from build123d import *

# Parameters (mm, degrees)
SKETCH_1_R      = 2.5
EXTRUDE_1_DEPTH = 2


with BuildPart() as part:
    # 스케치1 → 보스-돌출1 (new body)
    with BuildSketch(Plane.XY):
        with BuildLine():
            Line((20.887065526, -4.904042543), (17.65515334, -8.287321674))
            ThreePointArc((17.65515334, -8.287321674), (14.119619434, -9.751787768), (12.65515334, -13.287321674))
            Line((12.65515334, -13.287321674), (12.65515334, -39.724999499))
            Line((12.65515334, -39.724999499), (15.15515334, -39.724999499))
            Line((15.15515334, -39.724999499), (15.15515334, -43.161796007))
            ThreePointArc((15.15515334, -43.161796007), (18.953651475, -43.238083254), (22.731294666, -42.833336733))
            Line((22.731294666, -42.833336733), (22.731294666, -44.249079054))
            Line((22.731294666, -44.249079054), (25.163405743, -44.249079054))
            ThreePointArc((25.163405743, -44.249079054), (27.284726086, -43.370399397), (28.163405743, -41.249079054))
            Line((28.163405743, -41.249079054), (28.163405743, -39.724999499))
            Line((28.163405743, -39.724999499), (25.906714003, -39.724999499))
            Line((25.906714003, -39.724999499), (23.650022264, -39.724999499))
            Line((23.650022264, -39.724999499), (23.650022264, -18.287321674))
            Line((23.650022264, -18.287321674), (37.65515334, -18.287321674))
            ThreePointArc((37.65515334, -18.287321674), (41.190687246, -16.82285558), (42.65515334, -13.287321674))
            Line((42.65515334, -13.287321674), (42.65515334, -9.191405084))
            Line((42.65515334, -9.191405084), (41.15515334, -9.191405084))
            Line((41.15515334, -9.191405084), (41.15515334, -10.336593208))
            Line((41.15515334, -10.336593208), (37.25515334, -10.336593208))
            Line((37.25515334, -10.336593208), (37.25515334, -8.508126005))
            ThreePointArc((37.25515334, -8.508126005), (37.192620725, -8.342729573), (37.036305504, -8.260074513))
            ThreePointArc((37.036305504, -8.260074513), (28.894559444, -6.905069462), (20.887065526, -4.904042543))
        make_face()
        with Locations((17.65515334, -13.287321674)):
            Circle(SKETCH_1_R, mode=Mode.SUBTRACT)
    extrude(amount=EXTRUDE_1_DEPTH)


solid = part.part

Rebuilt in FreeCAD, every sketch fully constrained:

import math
import FreeCAD as App
import Part
import Sketcher
from FreeCAD import Vector

doc = App.newDocument("Part")
params = doc.addObject("Spreadsheet::Sheet", "Params")
for row, (alias, value) in enumerate([
    ("sketch1_diameter", "5 mm"),
    ("sketch1_radius", "5 mm"),
    ("sketch1_radius2", "3 mm"),
    ("sketch1_radius3", "0.25 mm"),
    ("sketch1_width", "2.5 mm"),
    ("pad1_length", "2 mm"),
], start=1):
    params.set(f"A{row}", alias)
    params.set(f"B{row}", "=" + value)
    params.setAlias(f"B{row}", alias)

body = doc.addObject("PartDesign::Body", "Body")

# Sketch on XY plane
sketch1 = body.newObject("Sketcher::SketchObject", "Sketch")
sketch1.AttachmentSupport = (doc.getObject("XY_Plane"), [""])
sketch1.MapMode = "FlatFace"
sketch1.addGeometry(Part.LineSegment(Vector(20.887066, -4.904043, 0), Vector(17.655153, -8.287322, 0)), False)
sketch1.addGeometry(Part.ArcOfCircle(Part.Circle(Vector(17.655153, -13.287322, 0), Vector(0, 0, 1), 5), math.radians(90), math.radians(180)), False)
sketch1.addGeometry(Part.LineSegment(Vector(12.655153, -13.287322, 0), Vector(12.655153, -39.724999, 0)), False)
sketch1.addGeometry(Part.LineSegment(Vector(12.655153, -39.724999, 0), Vector(15.155153, -39.724999, 0)), False)
sketch1.addGeometry(Part.LineSegment(Vector(15.155153, -39.724999, 0), Vector(15.155153, -43.161796, 0)), False)
sketch1.addGeometry(Part.ArcOfCircle(Part.Circle(Vector(17.655153, -13.287322, 0), Vector(0, 0, 1), 29.978896), math.radians(-94.783565), math.radians(-80.251493)), False)
sketch1.addGeometry(Part.LineSegment(Vector(22.731295, -42.833337, 0), Vector(22.731295, -44.249079, 0)), False)
sketch1.addGeometry(Part.LineSegment(Vector(22.731295, -44.249079, 0), Vector(25.163406, -44.249079, 0)), False)
sketch1.addGeometry(Part.ArcOfCircle(Part.Circle(Vector(25.163406, -41.249079, 0), Vector(0, 0, 1), 3), math.radians(-90), math.radians(0)), False)
sketch1.addGeometry(Part.LineSegment(Vector(28.163406, -41.249079, 0), Vector(28.163406, -39.724999, 0)), False)
sketch1.addGeometry(Part.LineSegment(Vector(28.163406, -39.724999, 0), Vector(23.650022, -39.724999, 0)), False)
sketch1.addGeometry(Part.LineSegment(Vector(23.650022, -39.724999, 0), Vector(23.650022, -18.287322, 0)), False)
sketch1.addGeometry(Part.LineSegment(Vector(23.650022, -18.287322, 0), Vector(37.655153, -18.287322, 0)), False)
sketch1.addGeometry(Part.ArcOfCircle(Part.Circle(Vector(37.655153, -13.287322, 0), Vector(0, 0, 1), 5), math.radians(-90), math.radians(0)), False)
sketch1.addGeometry(Part.LineSegment(Vector(42.655153, -13.287322, 0), Vector(42.655153, -9.191405, 0)), False)
sketch1.addGeometry(Part.LineSegment(Vector(42.655153, -9.191405, 0), Vector(41.155153, -9.191405, 0)), False)
sketch1.addGeometry(Part.LineSegment(Vector(41.155153, -9.191405, 0), Vector(41.155153, -10.336593, 0)), False)
sketch1.addGeometry(Part.LineSegment(Vector(41.155153, -10.336593, 0), Vector(37.255153, -10.336593, 0)), False)
sketch1.addGeometry(Part.LineSegment(Vector(37.255153, -10.336593, 0), Vector(37.255153, -8.508126, 0)), False)
sketch1.addGeometry(Part.ArcOfCircle(Part.Circle(Vector(37.005153, -8.508126, 0), Vector(0, 0, 1), 0.25), math.radians(0), math.radians(82.841843)), False)
sketch1.addGeometry(Part.ArcOfCircle(Part.Circle(Vector(49.901625, 94.181019, 0), Vector(0, 0, 1), 103.245795), math.radians(-106.321337), math.radians(-97.158157)), False)
sketch1.addGeometry(Part.Circle(Vector(17.655153, -13.287322, 0), Vector(0, 0, 1), 2.5), False)
sketch1.addConstraint(Sketcher.Constraint("Coincident", 0, 2, 1, 1))
sketch1.addConstraint(Sketcher.Constraint("Tangent", 1, 2, 2, 1))
sketch1.addConstraint(Sketcher.Constraint("Coincident", 2, 2, 3, 1))
sketch1.addConstraint(Sketcher.Constraint("Coincident", 3, 2, 4, 1))
sketch1.addConstraint(Sketcher.Constraint("Coincident", 4, 2, 5, 1))
sketch1.addConstraint(Sketcher.Constraint("Coincident", 5, 2, 6, 1))
sketch1.addConstraint(Sketcher.Constraint("Coincident", 6, 2, 7, 1))
sketch1.addConstraint(Sketcher.Constraint("Tangent", 7, 2, 8, 1))
sketch1.addConstraint(Sketcher.Constraint("Tangent", 8, 2, 9, 1))
sketch1.addConstraint(Sketcher.Constraint("Coincident", 9, 2, 10, 1))
sketch1.addConstraint(Sketcher.Constraint("Coincident", 10, 2, 11, 1))
sketch1.addConstraint(Sketcher.Constraint("Coincident", 11, 2, 12, 1))
sketch1.addConstraint(Sketcher.Constraint("Tangent", 12, 2, 13, 1))
sketch1.addConstraint(Sketcher.Constraint("Tangent", 13, 2, 14, 1))
sketch1.addConstraint(Sketcher.Constraint("Coincident", 14, 2, 15, 1))
sketch1.addConstraint(Sketcher.Constraint("Coincident", 15, 2, 16, 1))
sketch1.addConstraint(Sketcher.Constraint("Coincident", 16, 2, 17, 1))
sketch1.addConstraint(Sketcher.Constraint("Coincident", 17, 2, 18, 1))
sketch1.addConstraint(Sketcher.Constraint("Tangent", 18, 2, 19, 1))
sketch1.addConstraint(Sketcher.Constraint("Tangent", 19, 2, 20, 2))
sketch1.addConstraint(Sketcher.Constraint("Coincident", 20, 1, 0, 1))
sketch1.addConstraint(Sketcher.Constraint("Vertical", 2))
sketch1.addConstraint(Sketcher.Constraint("Horizontal", 3))
sketch1.addConstraint(Sketcher.Constraint("Vertical", 4))
sketch1.addConstraint(Sketcher.Constraint("Vertical", 6))
sketch1.addConstraint(Sketcher.Constraint("Horizontal", 7))
sketch1.addConstraint(Sketcher.Constraint("Vertical", 9))
sketch1.addConstraint(Sketcher.Constraint("Horizontal", 10))
sketch1.addConstraint(Sketcher.Constraint("Vertical", 11))
sketch1.addConstraint(Sketcher.Constraint("Horizontal", 12))
sketch1.addConstraint(Sketcher.Constraint("Vertical", 14))
sketch1.addConstraint(Sketcher.Constraint("Horizontal", 15))
sketch1.addConstraint(Sketcher.Constraint("Vertical", 16))
sketch1.addConstraint(Sketcher.Constraint("Horizontal", 17))
sketch1.addConstraint(Sketcher.Constraint("Vertical", 18))
sketch1.addConstraint(Sketcher.Constraint("Coincident", 5, 3, 1, 3))
sketch1.addConstraint(Sketcher.Constraint("Coincident", 21, 3, 1, 3))
sketch1.addConstraint(Sketcher.Constraint("Equal", 1, 13))
sketch1.addConstraint(Sketcher.Constraint("Horizontal", 5, 3, 13, 3))
sketch1.addConstraint(Sketcher.Constraint("Horizontal", 3, 2, 9, 2))
sketch1.addConstraint(Sketcher.Constraint("Vertical", 21, 3, 0, 2))
sketch1.addConstraint(Sketcher.Constraint("Diameter", 21, 5.0))
sketch1.addConstraint(Sketcher.Constraint("Radius", 1, 5.0))
sketch1.addConstraint(Sketcher.Constraint("Radius", 8, 3.0))
sketch1.addConstraint(Sketcher.Constraint("Radius", 19, 0.25))
sketch1.addConstraint(Sketcher.Constraint("DistanceX", 3, 1, 3, 2, 2.5))
sketch1.addConstraint(Sketcher.Constraint("DistanceX", 15, 2, 15, 1, 1.5))
sketch1.addConstraint(Sketcher.Constraint("DistanceX", 17, 2, 17, 1, 3.9))
sketch1.addConstraint(Sketcher.Constraint("DistanceX", 1, 3, 13, 3, 20.0))
sketch1.addConstraint(Sketcher.Constraint("DistanceY", 2, 2, -1, 1, 39.724999))
sketch1.addConstraint(Sketcher.Constraint("Radius", 5, 29.978896))
sketch1.addConstraint(Sketcher.Constraint("Radius", 20, 103.245795))
sketch1.addConstraint(Sketcher.Constraint("DistanceX", 7, 1, 7, 2, 2.432111))
sketch1.addConstraint(Sketcher.Constraint("DistanceX", 12, 1, 12, 2, 14.005131))
sketch1.addConstraint(Sketcher.Constraint("DistanceY", 9, 1, 9, 2, 1.52408))
sketch1.addConstraint(Sketcher.Constraint("DistanceY", 16, 2, 16, 1, 1.145188))
sketch1.addConstraint(Sketcher.Constraint("DistanceY", 8, 3, 20, 3, 135.430099))
sketch1.addConstraint(Sketcher.Constraint("Distance", 0, 4.678871))
sketch1.addConstraint(Sketcher.Constraint("DistanceX", 10, 2, 10, 1, 4.513383))
sketch1.addConstraint(Sketcher.Constraint("DistanceY", 2, 2, 2, 1, 26.437678))
sketch1.addConstraint(Sketcher.Constraint("DistanceY", 14, 1, 14, 2, 4.095917))
sketch1.addConstraint(Sketcher.Constraint("DistanceY", 18, 1, 18, 2, 1.828467))
sketch1.addConstraint(Sketcher.Constraint("DistanceX", -1, 1, 1, 3, 17.655153))
sketch1.setExpression("Constraints[41]", "Params.sketch1_diameter")
sketch1.setExpression("Constraints[42]", "Params.sketch1_radius")
sketch1.setExpression("Constraints[43]", "Params.sketch1_radius2")
sketch1.setExpression("Constraints[44]", "Params.sketch1_radius3")
sketch1.setExpression("Constraints[45]", "Params.sketch1_width")
pad1 = body.newObject("PartDesign::Pad", "Pad")
pad1.Profile = sketch1
pad1.setExpression("Length", "Params.pad1_length")

doc.recompute()
